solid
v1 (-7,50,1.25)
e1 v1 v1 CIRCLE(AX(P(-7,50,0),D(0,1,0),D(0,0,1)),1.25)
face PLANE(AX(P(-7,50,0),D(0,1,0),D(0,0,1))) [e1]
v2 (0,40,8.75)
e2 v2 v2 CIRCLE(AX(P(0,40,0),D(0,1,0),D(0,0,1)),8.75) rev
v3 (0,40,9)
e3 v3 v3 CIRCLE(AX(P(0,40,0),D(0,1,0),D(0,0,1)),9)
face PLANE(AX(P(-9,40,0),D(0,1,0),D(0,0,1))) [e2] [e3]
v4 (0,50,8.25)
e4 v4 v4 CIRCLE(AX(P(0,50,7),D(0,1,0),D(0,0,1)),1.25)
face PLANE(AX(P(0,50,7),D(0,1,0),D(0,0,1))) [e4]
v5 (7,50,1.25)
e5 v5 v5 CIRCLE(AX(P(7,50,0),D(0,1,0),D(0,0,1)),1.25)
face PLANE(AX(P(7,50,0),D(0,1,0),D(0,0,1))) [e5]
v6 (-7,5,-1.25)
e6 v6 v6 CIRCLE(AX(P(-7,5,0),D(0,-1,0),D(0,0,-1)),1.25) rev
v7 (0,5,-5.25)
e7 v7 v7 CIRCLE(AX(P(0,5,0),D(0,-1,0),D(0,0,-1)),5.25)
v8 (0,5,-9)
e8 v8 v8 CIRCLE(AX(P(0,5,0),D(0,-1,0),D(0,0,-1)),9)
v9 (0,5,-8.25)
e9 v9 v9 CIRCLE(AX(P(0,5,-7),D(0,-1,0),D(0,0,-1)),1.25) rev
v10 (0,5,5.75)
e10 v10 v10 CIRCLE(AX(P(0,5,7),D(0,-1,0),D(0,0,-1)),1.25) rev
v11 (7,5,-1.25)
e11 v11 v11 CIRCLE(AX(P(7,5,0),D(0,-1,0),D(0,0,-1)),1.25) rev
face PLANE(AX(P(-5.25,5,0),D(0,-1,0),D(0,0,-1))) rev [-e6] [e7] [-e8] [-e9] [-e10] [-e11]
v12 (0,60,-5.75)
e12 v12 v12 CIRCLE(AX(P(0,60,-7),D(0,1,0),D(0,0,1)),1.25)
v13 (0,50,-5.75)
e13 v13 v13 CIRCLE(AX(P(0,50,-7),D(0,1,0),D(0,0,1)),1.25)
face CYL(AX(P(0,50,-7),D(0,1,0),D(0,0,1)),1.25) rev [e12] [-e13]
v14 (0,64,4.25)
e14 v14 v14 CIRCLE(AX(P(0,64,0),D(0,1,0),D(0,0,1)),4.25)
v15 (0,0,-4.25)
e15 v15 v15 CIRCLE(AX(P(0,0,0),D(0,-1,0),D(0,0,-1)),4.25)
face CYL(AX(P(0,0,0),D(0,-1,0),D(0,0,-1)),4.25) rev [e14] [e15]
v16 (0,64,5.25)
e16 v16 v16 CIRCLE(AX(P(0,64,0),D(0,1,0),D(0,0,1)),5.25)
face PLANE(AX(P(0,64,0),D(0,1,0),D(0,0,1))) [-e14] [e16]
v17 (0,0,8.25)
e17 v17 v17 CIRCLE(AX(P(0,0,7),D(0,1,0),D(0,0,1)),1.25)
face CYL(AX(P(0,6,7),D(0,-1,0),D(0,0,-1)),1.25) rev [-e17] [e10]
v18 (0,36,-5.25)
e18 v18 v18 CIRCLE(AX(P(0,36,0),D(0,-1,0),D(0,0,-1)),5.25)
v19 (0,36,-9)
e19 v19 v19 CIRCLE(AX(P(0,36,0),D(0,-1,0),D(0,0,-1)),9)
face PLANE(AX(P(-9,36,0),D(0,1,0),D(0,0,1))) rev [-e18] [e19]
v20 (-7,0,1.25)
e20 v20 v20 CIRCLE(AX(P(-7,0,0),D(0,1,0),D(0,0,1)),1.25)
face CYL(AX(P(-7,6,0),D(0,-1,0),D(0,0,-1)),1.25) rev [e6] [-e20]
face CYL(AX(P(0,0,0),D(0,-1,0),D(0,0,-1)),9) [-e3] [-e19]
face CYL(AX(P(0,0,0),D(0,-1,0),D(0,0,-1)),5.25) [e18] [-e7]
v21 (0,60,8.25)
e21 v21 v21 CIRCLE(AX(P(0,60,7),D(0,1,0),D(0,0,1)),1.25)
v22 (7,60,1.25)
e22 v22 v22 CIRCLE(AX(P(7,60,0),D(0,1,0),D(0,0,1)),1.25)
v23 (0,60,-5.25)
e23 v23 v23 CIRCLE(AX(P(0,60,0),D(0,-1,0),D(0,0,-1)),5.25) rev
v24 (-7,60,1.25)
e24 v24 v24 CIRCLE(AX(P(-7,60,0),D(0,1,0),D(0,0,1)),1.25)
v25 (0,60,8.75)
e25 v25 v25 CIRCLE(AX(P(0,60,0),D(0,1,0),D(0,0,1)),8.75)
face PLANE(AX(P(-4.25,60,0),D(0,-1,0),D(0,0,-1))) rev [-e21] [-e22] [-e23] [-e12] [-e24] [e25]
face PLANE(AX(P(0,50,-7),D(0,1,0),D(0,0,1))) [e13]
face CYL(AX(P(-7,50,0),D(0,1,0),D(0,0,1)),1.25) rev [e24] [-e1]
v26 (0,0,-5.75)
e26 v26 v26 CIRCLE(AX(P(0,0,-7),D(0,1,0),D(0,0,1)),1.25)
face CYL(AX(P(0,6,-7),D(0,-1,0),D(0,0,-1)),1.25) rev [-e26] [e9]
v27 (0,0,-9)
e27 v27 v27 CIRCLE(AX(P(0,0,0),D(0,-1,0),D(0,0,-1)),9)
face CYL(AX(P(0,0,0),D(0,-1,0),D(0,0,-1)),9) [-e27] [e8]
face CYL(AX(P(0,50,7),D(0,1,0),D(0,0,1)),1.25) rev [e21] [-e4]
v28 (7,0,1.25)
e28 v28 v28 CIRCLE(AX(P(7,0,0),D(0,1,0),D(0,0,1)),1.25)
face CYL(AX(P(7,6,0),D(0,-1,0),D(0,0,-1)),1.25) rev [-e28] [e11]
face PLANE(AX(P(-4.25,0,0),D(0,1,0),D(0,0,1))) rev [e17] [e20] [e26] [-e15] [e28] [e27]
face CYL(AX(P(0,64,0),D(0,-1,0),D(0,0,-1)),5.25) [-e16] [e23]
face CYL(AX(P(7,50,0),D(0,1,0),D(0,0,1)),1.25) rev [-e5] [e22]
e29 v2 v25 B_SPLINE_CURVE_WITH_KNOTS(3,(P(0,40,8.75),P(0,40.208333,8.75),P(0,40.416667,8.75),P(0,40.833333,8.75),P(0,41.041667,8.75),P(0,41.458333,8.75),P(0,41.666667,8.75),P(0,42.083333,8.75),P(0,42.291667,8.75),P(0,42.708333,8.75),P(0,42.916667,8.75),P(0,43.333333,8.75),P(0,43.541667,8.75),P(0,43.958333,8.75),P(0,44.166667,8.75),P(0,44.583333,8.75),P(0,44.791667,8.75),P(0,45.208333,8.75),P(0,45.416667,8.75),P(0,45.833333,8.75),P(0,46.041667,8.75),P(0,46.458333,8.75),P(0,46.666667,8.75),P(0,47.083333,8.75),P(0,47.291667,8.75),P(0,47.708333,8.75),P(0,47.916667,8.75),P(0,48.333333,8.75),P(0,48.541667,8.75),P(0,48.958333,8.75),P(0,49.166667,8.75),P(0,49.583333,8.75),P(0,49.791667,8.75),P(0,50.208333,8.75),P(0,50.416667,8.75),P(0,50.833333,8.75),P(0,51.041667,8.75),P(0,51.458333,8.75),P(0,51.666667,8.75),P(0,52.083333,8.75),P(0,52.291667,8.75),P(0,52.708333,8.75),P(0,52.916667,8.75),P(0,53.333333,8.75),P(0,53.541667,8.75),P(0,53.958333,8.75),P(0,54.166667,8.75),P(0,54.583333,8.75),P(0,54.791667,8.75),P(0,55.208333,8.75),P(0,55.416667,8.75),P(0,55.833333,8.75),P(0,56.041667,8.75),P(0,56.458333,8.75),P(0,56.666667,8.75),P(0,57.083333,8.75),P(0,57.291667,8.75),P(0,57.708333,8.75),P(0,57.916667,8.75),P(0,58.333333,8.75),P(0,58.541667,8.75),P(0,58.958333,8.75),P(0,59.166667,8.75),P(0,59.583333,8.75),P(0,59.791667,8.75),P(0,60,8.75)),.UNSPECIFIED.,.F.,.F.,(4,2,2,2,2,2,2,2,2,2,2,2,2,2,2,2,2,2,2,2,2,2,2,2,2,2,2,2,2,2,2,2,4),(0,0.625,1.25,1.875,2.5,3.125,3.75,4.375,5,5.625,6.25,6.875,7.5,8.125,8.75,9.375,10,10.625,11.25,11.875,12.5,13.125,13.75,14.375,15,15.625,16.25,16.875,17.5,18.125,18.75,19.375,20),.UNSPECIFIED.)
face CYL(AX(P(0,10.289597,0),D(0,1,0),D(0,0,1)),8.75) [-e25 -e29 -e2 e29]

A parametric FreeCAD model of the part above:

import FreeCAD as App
import Part
import Sketcher
from FreeCAD import Vector
Q = App.Units.Quantity


def add_polygon(sketch, points):
    """Adds a closed chain of lines whose ends are joined by coincident constraints."""
    first, n = sketch.GeometryCount, len(points)
    for a, b in zip(points, points[1:] + points[:1]):
        sketch.addGeometry(Part.LineSegment(App.Vector(*a, 0), App.Vector(*b, 0)), False)
    for i in range(n):
        sketch.addConstraint(Sketcher.Constraint("Coincident", first + i, 2, first + (i + 1) % n, 1))

doc = App.newDocument("Part")
body = doc.addObject("PartDesign::Body", "Body")

sketch1 = body.newObject("Sketcher::SketchObject", "Sketch")
sketch1.AttachmentSupport = (doc.getObject("XY_Plane"), [""])
sketch1.MapMode = "FlatFace"
add_polygon(sketch1, [(-9, 36), (-5.25, 36), (-5.25, 5), (-9, 5), (-9, 0), (-4.25, 0), (-4.25, 60), (-9, 60)])
sketch1.addConstraint([
    Sketcher.Constraint("Horizontal", 0),
    Sketcher.Constraint("Vertical", 1),
    Sketcher.Constraint("Horizontal", 2),
    Sketcher.Constraint("Vertical", 3),
    Sketcher.Constraint("Horizontal", 4),
    Sketcher.Constraint("Vertical", 5),
    Sketcher.Constraint("Horizontal", 6),
    Sketcher.Constraint("Vertical", 7),
    Sketcher.Constraint("PointOnObject", 3, 2, -1),
    Sketcher.Constraint("Vertical", 3, 2, 6, 2),
    Sketcher.Constraint("DistanceY", 1, 2, 1, 1, Q("31 mm")),
    Sketcher.Constraint("DistanceY", 3, 2, 3, 1, Q("5 mm")),
    Sketcher.Constraint("DistanceY", 5, 1, 5, 2, Q("60 mm")),
    Sketcher.Constraint("DistanceX", 2, 2, -1, 1, Q("9 mm")),
    Sketcher.Constraint("DistanceX", 1, 2, 4, 2, Q("1 mm")),
    Sketcher.Constraint("DistanceX", 0, 1, 0, 2, Q("3.75 mm")),
])
revolution = body.newObject("PartDesign::Revolution", "Revolution")
revolution.Profile = sketch1
revolution.ReferenceAxis = (sketch1, ["V_Axis"])
revolution.Angle = 360

sketch2 = body.newObject("Sketcher::SketchObject", "Sketch001")
sketch2.AttachmentSupport = (doc.getObject("XZ_Plane"), [""])
sketch2.MapMode = "FlatFace"
sketch2.AttachmentOffset = App.Placement(Vector(0, 0, -60), App.Rotation())
sketch2.addGeometry([
    Part.Circle(Vector(0, -7, 0), Vector(0, 0, 1), 1.25),
    Part.Circle(Vector(0, 7, 0), Vector(0, 0, 1), 1.25),
    Part.Circle(Vector(-7, 0, 0), Vector(0, 0, 1), 1.25),
    Part.Circle(Vector(7, 0, 0), Vector(0, 0, 1), 1.25),
], False)
sketch2.addConstraint([
    Sketcher.Constraint("Equal", 0, 1),
    Sketcher.Constraint("Equal", 1, 2),
    Sketcher.Constraint("Equal", 2, 3),
    Sketcher.Constraint("Symmetric", 0, 3, 1, 3, -1, 1),
    Sketcher.Constraint("Symmetric", 2, 3, 3, 3, -1, 1),
    Sketcher.Constraint("PointOnObject", 0, 3, -2),
    Sketcher.Constraint("PointOnObject", 2, 3, -1),
    Sketcher.Constraint("Diameter", 0, Q("2.5 mm")),
    Sketcher.Constraint("DistanceY", 0, 3, -1, 1, Q("7 mm")),
    Sketcher.Constraint("DistanceX", 2, 3, -1, 1, Q("7 mm")),
])
pocket1 = body.newObject("PartDesign::Pocket", "Pocket")
pocket1.Profile = sketch2
pocket1.Length = 10
pocket1.Reversed = True

sketch3 = body.newObject("Sketcher::SketchObject", "Sketch002")
sketch3.AttachmentSupport = (doc.getObject("XZ_Plane"), [""])
sketch3.MapMode = "FlatFace"
sketch3.addGeometry([
    Part.Circle(Vector(0, -7, 0), Vector(0, 0, 1), 1.25),
    Part.Circle(Vector(0, 7, 0), Vector(0, 0, 1), 1.25),
    Part.Circle(Vector(-7, 0, 0), Vector(0, 0, 1), 1.25),
    Part.Circle(Vector(7, 0, 0), Vector(0, 0, 1), 1.25),
], False)
sketch3.addConstraint([
    Sketcher.Constraint("Equal", 0, 1),
    Sketcher.Constraint("Equal", 1, 2),
    Sketcher.Constraint("Equal", 2, 3),
    Sketcher.Constraint("Symmetric", 0, 3, 1, 3, -1, 1),
    Sketcher.Constraint("Symmetric", 2, 3, 3, 3, -1, 1),
    Sketcher.Constraint("PointOnObject", 0, 3, -2),
    Sketcher.Constraint("PointOnObject", 2, 3, -1),
    Sketcher.Constraint("Diameter", 0, Q("2.5 mm")),
    Sketcher.Constraint("DistanceY", 0, 3, -1, 1, Q("7 mm")),
    Sketcher.Constraint("DistanceX", 2, 3, -1, 1, Q("7 mm")),
])
pocket2 = body.newObject("PartDesign::Pocket", "Pocket001")
pocket2.Profile = sketch3
pocket2.Length = 6

sketch4 = body.newObject("Sketcher::SketchObject", "Sketch003")
sketch4.AttachmentSupport = (doc.getObject("XZ_Plane"), [""])
sketch4.MapMode = "FlatFace"
sketch4.AttachmentOffset = App.Placement(Vector(0, 0, -60), App.Rotation())
add_polygon(sketch4, [(-16.518, -16.518), (-16.518, 16.518), (16.518, 16.518), (16.518, -16.518)])
sketch4.addGeometry(Part.Circle(Vector(0, 0, 0), Vector(0, 0, 1), 8.75), False)
sketch4.addConstraint([
    Sketcher.Constraint("Vertical", 0),
    Sketcher.Constraint("Horizontal", 1),
    Sketcher.Constraint("Vertical", 2),
    Sketcher.Constraint("Horizontal", 3),
    Sketcher.Constraint("Coincident", 4, 3, -1, 1),
    Sketcher.Constraint("Symmetric", 0, 2, 2, 2, -1, 1),
    Sketcher.Constraint("Equal", 3, 0),
    Sketcher.Constraint("Diameter", 4, Q("17.5 mm")),
    Sketcher.Constraint("DistanceX", 1, 1, 1, 2, Q("33.036 mm")),
])
pocket3 = body.newObject("PartDesign::Pocket", "Pocket002")
pocket3.Profile = sketch4
pocket3.Length = 20
pocket3.Reversed = True

sketch5 = body.newObject("Sketcher::SketchObject", "Sketch004")
sketch5.AttachmentSupport = (doc.getObject("XZ_Plane"), [""])
sketch5.MapMode = "FlatFace"
sketch5.AttachmentOffset = App.Placement(Vector(0, 0, -60), App.Rotation())
sketch5.addGeometry([
    Part.Circle(Vector(0, 0, 0), Vector(0, 0, 1), 5.25),
    Part.Circle(Vector(0, 0, 0), Vector(0, 0, 1), 4.25),
], False)
sketch5.addConstraint([
    Sketcher.Constraint("Coincident", 0, 3, -1, 1),
    Sketcher.Constraint("Coincident", 1, 3, -1, 1),
    Sketcher.Constraint("Diameter", 0, Q("10.5 mm")),
    Sketcher.Constraint("Diameter", 1, Q("8.5 mm")),
])
pad1 = body.newObject("PartDesign::Pad", "Pad")
pad1.Profile = sketch5
pad1.Length = 4
pad1.Reversed = True

doc.recompute()
